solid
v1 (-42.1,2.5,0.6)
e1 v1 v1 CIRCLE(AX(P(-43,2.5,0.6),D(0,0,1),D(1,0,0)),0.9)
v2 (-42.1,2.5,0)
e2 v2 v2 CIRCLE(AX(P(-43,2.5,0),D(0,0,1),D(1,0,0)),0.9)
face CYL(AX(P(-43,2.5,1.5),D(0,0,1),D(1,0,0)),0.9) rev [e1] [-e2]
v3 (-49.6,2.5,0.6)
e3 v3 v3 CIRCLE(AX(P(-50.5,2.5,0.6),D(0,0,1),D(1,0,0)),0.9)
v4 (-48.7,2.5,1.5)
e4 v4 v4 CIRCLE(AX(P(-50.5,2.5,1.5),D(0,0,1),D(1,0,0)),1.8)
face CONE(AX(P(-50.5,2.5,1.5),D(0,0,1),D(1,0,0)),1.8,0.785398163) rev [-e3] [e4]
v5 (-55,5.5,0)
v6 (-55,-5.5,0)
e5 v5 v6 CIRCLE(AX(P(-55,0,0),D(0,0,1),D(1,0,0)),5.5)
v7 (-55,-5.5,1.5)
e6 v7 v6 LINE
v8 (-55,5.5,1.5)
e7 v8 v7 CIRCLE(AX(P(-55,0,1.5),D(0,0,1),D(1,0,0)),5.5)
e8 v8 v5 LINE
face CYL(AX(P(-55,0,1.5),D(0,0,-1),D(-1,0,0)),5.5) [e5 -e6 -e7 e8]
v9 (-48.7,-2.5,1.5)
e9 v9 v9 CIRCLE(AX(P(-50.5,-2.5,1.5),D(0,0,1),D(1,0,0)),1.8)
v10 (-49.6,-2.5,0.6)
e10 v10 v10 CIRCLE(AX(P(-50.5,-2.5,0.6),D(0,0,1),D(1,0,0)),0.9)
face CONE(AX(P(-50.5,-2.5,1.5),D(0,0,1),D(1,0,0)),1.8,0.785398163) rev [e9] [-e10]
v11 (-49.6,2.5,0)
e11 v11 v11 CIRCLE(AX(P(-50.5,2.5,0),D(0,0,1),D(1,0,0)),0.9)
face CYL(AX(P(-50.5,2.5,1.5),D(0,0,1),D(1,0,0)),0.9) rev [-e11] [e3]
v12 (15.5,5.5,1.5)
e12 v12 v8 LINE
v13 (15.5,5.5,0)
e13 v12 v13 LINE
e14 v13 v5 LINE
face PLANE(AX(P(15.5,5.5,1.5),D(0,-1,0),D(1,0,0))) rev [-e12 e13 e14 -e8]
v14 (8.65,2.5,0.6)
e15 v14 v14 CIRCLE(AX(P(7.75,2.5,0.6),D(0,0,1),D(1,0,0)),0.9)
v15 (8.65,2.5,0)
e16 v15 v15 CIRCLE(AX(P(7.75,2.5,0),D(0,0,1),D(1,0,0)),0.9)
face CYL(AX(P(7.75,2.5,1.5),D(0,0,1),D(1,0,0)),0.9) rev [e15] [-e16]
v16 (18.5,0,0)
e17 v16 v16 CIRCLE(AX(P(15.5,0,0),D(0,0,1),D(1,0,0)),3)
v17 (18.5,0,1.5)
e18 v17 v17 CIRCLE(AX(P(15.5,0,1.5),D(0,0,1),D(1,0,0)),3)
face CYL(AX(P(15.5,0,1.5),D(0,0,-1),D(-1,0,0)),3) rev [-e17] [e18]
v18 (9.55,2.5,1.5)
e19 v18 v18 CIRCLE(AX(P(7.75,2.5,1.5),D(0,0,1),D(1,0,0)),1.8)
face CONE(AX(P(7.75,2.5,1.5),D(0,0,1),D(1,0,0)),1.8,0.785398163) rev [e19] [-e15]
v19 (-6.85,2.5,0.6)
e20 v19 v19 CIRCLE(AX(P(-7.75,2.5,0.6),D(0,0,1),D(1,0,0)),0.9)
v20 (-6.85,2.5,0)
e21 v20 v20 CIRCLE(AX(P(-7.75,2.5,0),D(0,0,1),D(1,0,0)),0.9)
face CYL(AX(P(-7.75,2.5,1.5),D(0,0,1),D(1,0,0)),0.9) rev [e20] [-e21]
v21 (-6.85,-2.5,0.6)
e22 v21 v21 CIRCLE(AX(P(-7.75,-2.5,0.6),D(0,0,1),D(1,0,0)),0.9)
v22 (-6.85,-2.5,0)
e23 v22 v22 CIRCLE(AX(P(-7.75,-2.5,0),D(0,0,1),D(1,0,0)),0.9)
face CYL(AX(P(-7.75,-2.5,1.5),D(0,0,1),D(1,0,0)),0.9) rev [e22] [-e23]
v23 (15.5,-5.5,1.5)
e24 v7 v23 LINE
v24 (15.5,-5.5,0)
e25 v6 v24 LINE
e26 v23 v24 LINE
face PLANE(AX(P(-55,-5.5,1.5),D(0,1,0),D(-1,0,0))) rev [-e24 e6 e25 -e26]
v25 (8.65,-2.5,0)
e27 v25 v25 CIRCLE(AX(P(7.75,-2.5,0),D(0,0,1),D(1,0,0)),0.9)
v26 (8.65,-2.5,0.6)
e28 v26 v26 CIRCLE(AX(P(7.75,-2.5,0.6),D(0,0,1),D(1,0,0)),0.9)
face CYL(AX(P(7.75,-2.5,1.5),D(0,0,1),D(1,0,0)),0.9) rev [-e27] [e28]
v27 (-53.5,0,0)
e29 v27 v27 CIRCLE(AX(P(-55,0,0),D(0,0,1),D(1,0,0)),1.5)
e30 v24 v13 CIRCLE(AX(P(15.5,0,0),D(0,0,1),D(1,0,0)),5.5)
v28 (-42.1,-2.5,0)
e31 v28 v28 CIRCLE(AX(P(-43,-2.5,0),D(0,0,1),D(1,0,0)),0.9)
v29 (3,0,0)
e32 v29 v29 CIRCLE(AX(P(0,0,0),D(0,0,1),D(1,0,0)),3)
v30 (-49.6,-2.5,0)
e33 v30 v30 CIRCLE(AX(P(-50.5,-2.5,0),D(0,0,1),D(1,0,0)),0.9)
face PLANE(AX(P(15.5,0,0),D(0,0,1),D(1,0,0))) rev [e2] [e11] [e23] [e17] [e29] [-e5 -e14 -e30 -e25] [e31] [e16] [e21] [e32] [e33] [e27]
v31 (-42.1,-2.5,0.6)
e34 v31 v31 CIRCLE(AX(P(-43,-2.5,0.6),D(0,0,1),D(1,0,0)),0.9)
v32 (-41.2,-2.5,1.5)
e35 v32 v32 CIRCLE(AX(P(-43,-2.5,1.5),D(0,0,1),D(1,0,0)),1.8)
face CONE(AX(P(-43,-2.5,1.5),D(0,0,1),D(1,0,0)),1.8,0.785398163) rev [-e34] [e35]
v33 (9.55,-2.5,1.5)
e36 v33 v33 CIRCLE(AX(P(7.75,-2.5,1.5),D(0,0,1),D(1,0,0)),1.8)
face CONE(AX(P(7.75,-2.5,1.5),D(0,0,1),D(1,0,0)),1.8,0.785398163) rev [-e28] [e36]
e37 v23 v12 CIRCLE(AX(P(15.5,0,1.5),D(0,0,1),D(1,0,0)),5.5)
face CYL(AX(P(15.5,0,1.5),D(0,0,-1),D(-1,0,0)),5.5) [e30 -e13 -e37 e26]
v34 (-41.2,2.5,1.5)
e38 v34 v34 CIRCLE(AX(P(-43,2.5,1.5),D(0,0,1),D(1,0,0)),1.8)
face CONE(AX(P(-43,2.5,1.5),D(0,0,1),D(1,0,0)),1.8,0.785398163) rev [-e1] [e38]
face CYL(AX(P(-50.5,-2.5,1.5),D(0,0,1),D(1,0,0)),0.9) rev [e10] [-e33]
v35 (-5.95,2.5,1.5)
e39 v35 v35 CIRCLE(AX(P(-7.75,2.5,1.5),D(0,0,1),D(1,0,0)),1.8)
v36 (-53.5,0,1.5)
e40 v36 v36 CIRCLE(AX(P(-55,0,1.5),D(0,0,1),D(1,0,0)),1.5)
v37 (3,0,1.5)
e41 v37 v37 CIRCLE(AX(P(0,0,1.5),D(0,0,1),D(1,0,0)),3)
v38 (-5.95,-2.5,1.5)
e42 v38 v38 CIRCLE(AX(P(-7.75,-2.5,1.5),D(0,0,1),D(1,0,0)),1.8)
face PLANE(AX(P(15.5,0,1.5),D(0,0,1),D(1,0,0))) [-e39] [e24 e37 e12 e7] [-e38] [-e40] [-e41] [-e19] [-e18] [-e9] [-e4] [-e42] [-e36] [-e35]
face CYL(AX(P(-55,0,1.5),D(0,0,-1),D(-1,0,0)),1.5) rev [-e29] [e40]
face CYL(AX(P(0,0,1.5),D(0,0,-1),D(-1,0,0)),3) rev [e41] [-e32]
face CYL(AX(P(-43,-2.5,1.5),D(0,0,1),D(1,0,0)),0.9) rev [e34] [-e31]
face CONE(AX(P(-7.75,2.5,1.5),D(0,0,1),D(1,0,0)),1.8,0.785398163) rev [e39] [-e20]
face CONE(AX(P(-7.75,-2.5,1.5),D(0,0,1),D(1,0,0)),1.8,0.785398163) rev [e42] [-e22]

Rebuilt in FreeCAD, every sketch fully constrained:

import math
import FreeCAD as App
import Part
import Sketcher

V = App.Vector
Q = App.Units.Quantity


def add_polygon(sketch, points):
    """Adds a closed chain of lines whose ends are joined by coincident constraints."""
    first, n = sketch.GeometryCount, len(points)
    for a, b in zip(points, points[1:] + points[:1]):
        sketch.addGeometry(Part.LineSegment(App.Vector(*a, 0), App.Vector(*b, 0)), False)
    for i in range(n):
        sketch.addConstraint(Sketcher.Constraint("Coincident", first + i, 2, first + (i + 1) % n, 1))

doc = App.newDocument("Part")
body = doc.addObject("PartDesign::Body", "Body")

sketch1 = body.newObject("Sketcher::SketchObject", "Sketch")
sketch1.AttachmentSupport = (doc.getObject("XY_Plane"), [""])
sketch1.MapMode = "FlatFace"
sketch1.addGeometry(Part.LineSegment(V(15.5, 5.5, 0), V(-55, 5.5, 0)), False)
sketch1.addGeometry(Part.ArcOfCircle(Part.Circle(V(-55, 0, 0), V(0, 0, 1), 5.5), math.radians(90), math.radians(270)), False)
sketch1.addGeometry(Part.LineSegment(V(-55, -5.5, 0), V(15.5, -5.5, 0)), False)
sketch1.addGeometry(Part.ArcOfCircle(Part.Circle(V(15.5, 0, 0), V(0, 0, 1), 5.5), math.radians(-90), math.radians(90)), False)
sketch1.addGeometry(Part.Circle(V(-55, 0, 0), V(0, 0, 1), 1.5), False)
sketch1.addGeometry(Part.Circle(V(0, 0, 0), V(0, 0, 1), 3), False)
sketch1.addGeometry(Part.Circle(V(15.5, 0, 0), V(0, 0, 1), 3), False)
sketch1.addConstraint(Sketcher.Constraint("Tangent", 0, 2, 1, 1))
sketch1.addConstraint(Sketcher.Constraint("Tangent", 1, 2, 2, 1))
sketch1.addConstraint(Sketcher.Constraint("Tangent", 2, 2, 3, 1))
sketch1.addConstraint(Sketcher.Constraint("Tangent", 3, 2, 0, 1))
sketch1.addConstraint(Sketcher.Constraint("Horizontal", 0))
sketch1.addConstraint(Sketcher.Constraint("Horizontal", 2))
sketch1.addConstraint(Sketcher.Constraint("Coincident", 5, 3, -1, 1))
sketch1.addConstraint(Sketcher.Constraint("Coincident", 4, 3, 1, 3))
sketch1.addConstraint(Sketcher.Constraint("Coincident", 6, 3, 3, 3))
sketch1.addConstraint(Sketcher.Constraint("Equal", 5, 6))
sketch1.addConstraint(Sketcher.Constraint("PointOnObject", 1, 3, -1))
sketch1.addConstraint(Sketcher.Constraint("Diameter", 4, 3.0))
sketch1.addConstraint(Sketcher.Constraint("Diameter", 5, 6.0))
sketch1.addConstraint(Sketcher.Constraint("Radius", 1, 5.5))
sketch1.addConstraint(Sketcher.Constraint("DistanceX", 0, 2, 0, 1, 70.5))
sketch1.addConstraint(Sketcher.Constraint("DistanceX", 1, 3, -1, 1, 55.0))
pad1 = body.newObject("PartDesign::Pad", "Pad")
pad1.Profile = sketch1
pad1.Length = 1.5

sketch2 = body.newObject("Sketcher::SketchObject", "Sketch001")
sketch2.AttachmentSupport = (doc.getObject("YZ_Plane"), [""])
sketch2.MapMode = "FlatFace"
sketch2.AttachmentOffset = App.Placement(V(0, 0, 7.75), App.Rotation())
add_polygon(sketch2, [(2.5, 0), (2.5, 1.5), (0.7, 1.5), (1.6, 0.6), (1.6, 0)])
sketch2.addGeometry(Part.LineSegment(V(2.5, 1.5, 0), V(2.5, 0, 0)), True)
sketch2.addConstraint(Sketcher.Constraint("Vertical", 0))
sketch2.addConstraint(Sketcher.Constraint("Horizontal", 1))
sketch2.addConstraint(Sketcher.Constraint("Vertical", 3))
sketch2.addConstraint(Sketcher.Constraint("Horizontal", 4))
sketch2.addConstraint(Sketcher.Constraint("Vertical", 5))
sketch2.addConstraint(Sketcher.Constraint("Coincident", 5, 1, 0, 2))
sketch2.addConstraint(Sketcher.Constraint("PointOnObject", 3, 2, -1))
sketch2.addConstraint(Sketcher.Constraint("PointOnObject", 5, 2, -1))
sketch2.addConstraint(Sketcher.Constraint("Angle", 2, Q("-45 deg")))
sketch2.addConstraint(Sketcher.Constraint("DistanceX", 1, 2, 1, 1, 1.8))
sketch2.addConstraint(Sketcher.Constraint("DistanceX", 4, 1, 4, 2, 0.9))
sketch2.addConstraint(Sketcher.Constraint("DistanceY", 0, 1, 0, 2, 1.5))
sketch2.addConstraint(Sketcher.Constraint("DistanceX", -1, 1, 0, 2, 2.5))
groove = body.newObject("PartDesign::Groove", "Groove")
groove.Profile = sketch2
groove.ReferenceAxis = (sketch2, ["Axis0"])
groove.Angle = 360
doc.recompute()

linearpattern = body.newObject("PartDesign::LinearPattern", "LinearPattern")
linearpattern.Originals = [groove]
linearpattern.Direction = (doc.getObject("X_Axis"), [""])
linearpattern.Mode = "offset"
linearpattern.Offset = 15.5
linearpattern.Occurrences = 2
linearpattern.Reversed = True
body.Tip = linearpattern
doc.recompute()

linearpattern2 = body.newObject("PartDesign::LinearPattern", "LinearPattern001")
linearpattern2.Originals = [groove]
linearpattern2.Direction = (doc.getObject("X_Axis"), [""])
linearpattern2.Mode = "offset"
linearpattern2.Offset = 58.25
linearpattern2.Occurrences = 2
linearpattern2.Reversed = True
body.Tip = linearpattern2
doc.recompute()

linearpattern3 = body.newObject("PartDesign::LinearPattern", "LinearPattern002")
linearpattern3.Originals = [groove]
linearpattern3.Direction = (doc.getObject("X_Axis"), [""])
linearpattern3.Mode = "offset"
linearpattern3.Offset = 50.75
linearpattern3.Occurrences = 2
linearpattern3.Reversed = True
body.Tip = linearpattern3
doc.recompute()

mirrored = body.newObject("PartDesign::Mirrored", "Mirrored")
mirrored.Originals = [groove]
mirrored.MirrorPlane = (doc.getObject("XZ_Plane"), [""])
body.Tip = mirrored

sketch3 = body.newObject("Sketcher::SketchObject", "Sketch002")
sketch3.AttachmentSupport = (doc.getObject("YZ_Plane"), [""])
sketch3.MapMode = "FlatFace"
sketch3.AttachmentOffset = App.Placement(V(0, 0, -7.75), App.Rotation())
add_polygon(sketch3, [(-2.5, 1.5), (-2.5, 0), (-1.6, 0), (-1.6, 0.6), (-0.7, 1.5)])
sketch3.addGeometry(Part.LineSegment(V(-2.5, 0, 0), V(-2.5, 1.5, 0)), True)
sketch3.addConstraint(Sketcher.Constraint("Vertical", 0))
sketch3.addConstraint(Sketcher.Constraint("Horizontal", 1))
sketch3.addConstraint(Sketcher.Constraint("Vertical", 2))
sketch3.addConstraint(Sketcher.Constraint("Horizontal", 4))
sketch3.addConstraint(Sketcher.Constraint("Vertical", 5))
sketch3.addConstraint(Sketcher.Constraint("Coincident", 5, 1, 0, 2))
sketch3.addConstraint(Sketcher.Constraint("PointOnObject", 0, 2, -1))
sketch3.addConstraint(Sketcher.Constraint("Horizontal", 3, 2, 5, 2))
sketch3.addConstraint(Sketcher.Constraint("Angle", 3, Q("45 deg")))
sketch3.addConstraint(Sketcher.Constraint("DistanceX", 1, 1, 1, 2, 0.9))
sketch3.addConstraint(Sketcher.Constraint("DistanceX", 4, 2, 4, 1, 1.8))
sketch3.addConstraint(Sketcher.Constraint("DistanceY", 0, 2, 0, 1, 1.5))
sketch3.addConstraint(Sketcher.Constraint("DistanceX", 0, 2, -1, 1, 2.5))
groove2 = body.newObject("PartDesign::Groove", "Groove001")
groove2.Profile = sketch3
groove2.ReferenceAxis = (sketch3, ["Axis0"])
groove2.Angle = 360

sketch4 = body.newObject("Sketcher::SketchObject", "Sketch003")
sketch4.AttachmentSupport = (doc.getObject("YZ_Plane"), [""])
sketch4.MapMode = "FlatFace"
sketch4.AttachmentOffset = App.Placement(V(0, 0, -50.5), App.Rotation())
add_polygon(sketch4, [(-2.5, 1.5), (-2.5, 0), (-1.6, 0), (-1.6, 0.6), (-0.7, 1.5)])
sketch4.addGeometry(Part.LineSegment(V(-2.5, 0, 0), V(-2.5, 1.5, 0)), True)
sketch4.addConstraint(Sketcher.Constraint("Vertical", 0))
sketch4.addConstraint(Sketcher.Constraint("Horizontal", 1))
sketch4.addConstraint(Sketcher.Constraint("Vertical", 2))
sketch4.addConstraint(Sketcher.Constraint("Horizontal", 4))
sketch4.addConstraint(Sketcher.Constraint("Vertical", 5))
sketch4.addConstraint(Sketcher.Constraint("Coincident", 5, 1, 0, 2))
sketch4.addConstraint(Sketcher.Constraint("PointOnObject", 0, 2, -1))
sketch4.addConstraint(Sketcher.Constraint("Horizontal", 3, 2, 5, 2))
sketch4.addConstraint(Sketcher.Constraint("Angle", 3, Q("45 deg")))
sketch4.addConstraint(Sketcher.Constraint("DistanceX", 1, 1, 1, 2, 0.9))
sketch4.addConstraint(Sketcher.Constraint("DistanceX", 4, 2, 4, 1, 1.8))
sketch4.addConstraint(Sketcher.Constraint("DistanceY", 0, 2, 0, 1, 1.5))
sketch4.addConstraint(Sketcher.Constraint("DistanceX", 0, 2, -1, 1, 2.5))
groove3 = body.newObject("PartDesign::Groove", "Groove002")
groove3.Profile = sketch4
groove3.ReferenceAxis = (sketch4, ["Axis0"])
groove3.Angle = 360

sketch5 = body.newObject("Sketcher::SketchObject", "Sketch004")
sketch5.AttachmentSupport = (doc.getObject("YZ_Plane"), [""])
sketch5.MapMode = "FlatFace"
sketch5.AttachmentOffset = App.Placement(V(0, 0, -43), App.Rotation())
add_polygon(sketch5, [(-2.5, 1.5), (-2.5, 0), (-1.6, 0), (-1.6, 0.6), (-0.7, 1.5)])
sketch5.addGeometry(Part.LineSegment(V(-2.5, 0, 0), V(-2.5, 1.5, 0)), True)
sketch5.addConstraint(Sketcher.Constraint("Vertical", 0))
sketch5.addConstraint(Sketcher.Constraint("Horizontal", 1))
sketch5.addConstraint(Sketcher.Constraint("Vertical", 2))
sketch5.addConstraint(Sketcher.Constraint("Horizontal", 4))
sketch5.addConstraint(Sketcher.Constraint("Vertical", 5))
sketch5.addConstraint(Sketcher.Constraint("Coincident", 5, 1, 0, 2))
sketch5.addConstraint(Sketcher.Constraint("PointOnObject", 0, 2, -1))
sketch5.addConstraint(Sketcher.Constraint("Horizontal", 3, 2, 5, 2))
sketch5.addConstraint(Sketcher.Constraint("Angle", 3, Q("45 deg")))
sketch5.addConstraint(Sketcher.Constraint("DistanceX", 1, 1, 1, 2, 0.9))
sketch5.addConstraint(Sketcher.Constraint("DistanceX", 4, 2, 4, 1, 1.8))
sketch5.addConstraint(Sketcher.Constraint("DistanceY", 0, 2, 0, 1, 1.5))
sketch5.addConstraint(Sketcher.Constraint("DistanceX", 0, 2, -1, 1, 2.5))
groove4 = body.newObject("PartDesign::Groove", "Groove003")
groove4.Profile = sketch5
groove4.ReferenceAxis = (sketch5, ["Axis0"])
groove4.Angle = 360

doc.recompute()
